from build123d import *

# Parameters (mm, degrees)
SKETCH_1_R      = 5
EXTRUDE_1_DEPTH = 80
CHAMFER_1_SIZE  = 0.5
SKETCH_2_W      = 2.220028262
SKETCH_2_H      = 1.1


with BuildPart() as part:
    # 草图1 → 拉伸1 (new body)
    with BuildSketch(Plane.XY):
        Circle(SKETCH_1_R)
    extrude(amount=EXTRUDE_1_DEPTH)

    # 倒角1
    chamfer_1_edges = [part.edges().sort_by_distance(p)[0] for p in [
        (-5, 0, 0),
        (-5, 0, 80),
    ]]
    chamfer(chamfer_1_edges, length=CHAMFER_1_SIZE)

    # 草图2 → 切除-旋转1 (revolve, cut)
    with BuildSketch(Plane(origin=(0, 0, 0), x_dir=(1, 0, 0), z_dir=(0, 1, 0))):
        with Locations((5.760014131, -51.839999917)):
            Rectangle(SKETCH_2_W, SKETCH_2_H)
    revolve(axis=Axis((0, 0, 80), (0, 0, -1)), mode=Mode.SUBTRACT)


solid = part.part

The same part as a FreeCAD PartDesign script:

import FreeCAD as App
import Part
import Sketcher
from FreeCAD import Vector


def edges_at(feature, points):
    """Names of the edges that pass closest to the given points."""
    edges = feature.Shape.Edges
    near = lambda p: min(range(len(edges)), key=lambda i: edges[i].distToShape(Part.Vertex(*p))[0])
    return sorted({f"Edge{near(p) + 1}" for p in points})


def add_polygon(sketch, points):
    """Adds a closed chain of lines whose ends are joined by coincident constraints."""
    first, n = sketch.GeometryCount, len(points)
    for a, b in zip(points, points[1:] + points[:1]):
        sketch.addGeometry(Part.LineSegment(App.Vector(*a, 0), App.Vector(*b, 0)), False)
    for i in range(n):
        sketch.addConstraint(Sketcher.Constraint("Coincident", first + i, 2, first + (i + 1) % n, 1))

doc = App.newDocument("Part")
body = doc.addObject("PartDesign::Body", "Body")

sketch1 = doc.addObject("Sketcher::SketchObject", "Sketch")
body.addObject(sketch1)
sketch1.AttachmentSupport = (doc.XY_Plane, [""])
sketch1.MapMode = "FlatFace"
sketch1.addGeometry(Part.Circle(Vector(0, 0, 0), Vector(0, 0, 1), 5), False)
sketch1.addConstraint(Sketcher.Constraint("Coincident", 0, 3, -1, 1))
sketch1.addConstraint(Sketcher.Constraint("Diameter", 0, 10.0))
pad1 = doc.addObject("PartDesign::Pad", "Pad")
body.addObject(pad1)
pad1.Profile = sketch1
pad1.Length = 80
doc.recompute()

chamfer = doc.addObject("PartDesign::Chamfer", "Chamfer")
body.addObject(chamfer)
chamfer.Base = (pad1, edges_at(pad1, [(-5, 0, 0), (-5, 0, 80)]))
chamfer.Size = 0.5

sketch2 = doc.addObject("Sketcher::SketchObject", "Sketch001")
body.addObject(sketch2)
sketch2.AttachmentSupport = (doc.XZ_Plane, [""])
sketch2.MapMode = "FlatFace"
add_polygon(sketch2, [(4.7, 51.3), (4.7, 52.4), (6.9, 52.4), (6.9, 51.3)])
sketch2.addConstraint(Sketcher.Constraint("Vertical", 0))
sketch2.addConstraint(Sketcher.Constraint("Horizontal", 1))
sketch2.addConstraint(Sketcher.Constraint("Vertical", 2))
sketch2.addConstraint(Sketcher.Constraint("Horizontal", 3))
sketch2.addConstraint(Sketcher.Constraint("DistanceY", 0, 1, 0, 2, 1.1))
sketch2.addConstraint(Sketcher.Constraint("DistanceX", -1, 1, 0, 2, 4.65))
sketch2.addConstraint(Sketcher.Constraint("DistanceY", -1, 1, 0, 2, 52.39))
sketch2.addConstraint(Sketcher.Constraint("DistanceX", 1, 1, 1, 2, 2.220028))
groove = doc.addObject("PartDesign::Groove", "Groove")
body.addObject(groove)
groove.Profile = sketch2
groove.ReferenceAxis = (sketch2, ["V_Axis"])
groove.Angle = 360

doc.recompute()
